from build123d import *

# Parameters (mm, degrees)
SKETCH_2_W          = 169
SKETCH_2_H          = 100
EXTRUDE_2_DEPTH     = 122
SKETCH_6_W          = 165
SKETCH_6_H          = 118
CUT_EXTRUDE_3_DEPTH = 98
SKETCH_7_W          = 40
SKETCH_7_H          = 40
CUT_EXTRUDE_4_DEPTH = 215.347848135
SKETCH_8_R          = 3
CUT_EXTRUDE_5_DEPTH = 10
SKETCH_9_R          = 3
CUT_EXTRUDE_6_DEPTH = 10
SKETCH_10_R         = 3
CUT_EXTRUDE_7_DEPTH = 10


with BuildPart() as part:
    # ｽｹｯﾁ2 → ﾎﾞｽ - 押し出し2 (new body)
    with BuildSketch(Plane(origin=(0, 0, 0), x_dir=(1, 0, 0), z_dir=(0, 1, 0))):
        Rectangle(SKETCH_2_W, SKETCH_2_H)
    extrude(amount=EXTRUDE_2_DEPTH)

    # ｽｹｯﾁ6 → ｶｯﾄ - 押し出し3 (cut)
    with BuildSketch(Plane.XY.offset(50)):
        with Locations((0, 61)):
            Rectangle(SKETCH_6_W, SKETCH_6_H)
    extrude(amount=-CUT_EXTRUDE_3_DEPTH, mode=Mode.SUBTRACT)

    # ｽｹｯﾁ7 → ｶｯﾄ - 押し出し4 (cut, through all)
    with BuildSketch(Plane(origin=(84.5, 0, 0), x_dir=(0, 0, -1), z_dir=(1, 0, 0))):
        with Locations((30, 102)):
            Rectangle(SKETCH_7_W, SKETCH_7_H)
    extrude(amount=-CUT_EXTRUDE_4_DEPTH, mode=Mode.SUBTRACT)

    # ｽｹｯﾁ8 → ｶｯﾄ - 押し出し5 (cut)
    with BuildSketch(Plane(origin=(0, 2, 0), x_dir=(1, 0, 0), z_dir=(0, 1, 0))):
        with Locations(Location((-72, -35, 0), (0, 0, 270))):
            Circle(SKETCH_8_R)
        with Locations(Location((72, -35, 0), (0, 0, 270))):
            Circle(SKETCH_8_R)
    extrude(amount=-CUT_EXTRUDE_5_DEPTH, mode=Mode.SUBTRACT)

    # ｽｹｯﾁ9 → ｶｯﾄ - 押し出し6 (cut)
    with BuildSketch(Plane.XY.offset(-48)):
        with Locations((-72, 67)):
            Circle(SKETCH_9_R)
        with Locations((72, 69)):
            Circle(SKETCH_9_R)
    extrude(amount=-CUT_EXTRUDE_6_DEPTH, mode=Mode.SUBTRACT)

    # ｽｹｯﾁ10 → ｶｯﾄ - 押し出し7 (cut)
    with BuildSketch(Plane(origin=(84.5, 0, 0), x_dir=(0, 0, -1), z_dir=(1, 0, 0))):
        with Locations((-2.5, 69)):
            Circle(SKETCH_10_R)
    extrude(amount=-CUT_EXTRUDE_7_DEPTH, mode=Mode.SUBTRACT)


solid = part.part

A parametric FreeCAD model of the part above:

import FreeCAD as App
import Part
import Sketcher
from FreeCAD import Vector

doc = App.newDocument("Part")
params = doc.addObject("Spreadsheet::Sheet", "Params")
for row, (alias, value) in enumerate([
    ("sketch1_width", "169 mm"),
    ("sketch1_height", "100 mm"),
    ("pad1_length", "122 mm"),
    ("sketch2_width", "165 mm"),
    ("sketch2_height", "118 mm"),
    ("pocket1_length", "98 mm"),
    ("sketch3_width", "40 mm"),
    ("sketch4_diameter", "6 mm"),
    ("pocket3_length", "10 mm"),
    ("sketch5_diameter", "6 mm"),
    ("pocket4_length", "10 mm"),
    ("sketch6_diameter", "6 mm"),
    ("pocket5_length", "10 mm"),
], start=1):
    params.set(f"A{row}", alias)
    params.set(f"B{row}", "=" + value)
    params.setAlias(f"B{row}", alias)

body = doc.addObject("PartDesign::Body", "Body")

sketch1 = doc.addObject("Sketcher::SketchObject", "Sketch")
body.addObject(sketch1)
sketch1.AttachmentSupport = (doc.XZ_Plane, [""])
sketch1.MapMode = "FlatFace"
sketch1.addGeometry([
    Part.LineSegment(Vector(-84, -50, 0), Vector(-84, 50, 0)),
    Part.LineSegment(Vector(-84, 50, 0), Vector(84, 50, 0)),
    Part.LineSegment(Vector(84, 50, 0), Vector(84, -50, 0)),
    Part.LineSegment(Vector(84, -50, 0), Vector(-84, -50, 0)),
], False)
sketch1.addConstraint([
    Sketcher.Constraint("Coincident", 0, 2, 1, 1),
    Sketcher.Constraint("Coincident", 1, 2, 2, 1),
    Sketcher.Constraint("Coincident", 2, 2, 3, 1),
    Sketcher.Constraint("Coincident", 3, 2, 0, 1),
    Sketcher.Constraint("Vertical", 0),
    Sketcher.Constraint("Horizontal", 1),
    Sketcher.Constraint("Vertical", 2),
    Sketcher.Constraint("Horizontal", 3),
    Sketcher.Constraint("Symmetric", 0, 2, 2, 2, -1, 1),
    Sketcher.Constraint("DistanceX", 1, 1, 1, 2, 169.0),
    Sketcher.Constraint("DistanceY", 0, 1, 0, 2, 100.0),
])
sketch1.setExpression("Constraints[9]", "Params.sketch1_width")
sketch1.setExpression("Constraints[10]", "Params.sketch1_height")
pad1 = doc.addObject("PartDesign::Pad", "Pad")
body.addObject(pad1)
pad1.Profile = sketch1
pad1.setExpression("Length", "Params.pad1_length")
pad1.Reversed = True

sketch2 = doc.addObject("Sketcher::SketchObject", "Sketch001")
body.addObject(sketch2)
sketch2.AttachmentSupport = (doc.XY_Plane, [""])
sketch2.MapMode = "FlatFace"
sketch2.AttachmentOffset = App.Placement(Vector(0, 0, 50), App.Rotation())
sketch2.addGeometry([
    Part.LineSegment(Vector(-82, 120, 0), Vector(-82, 2, 0)),
    Part.LineSegment(Vector(-82, 2, 0), Vector(82, 2, 0)),
    Part.LineSegment(Vector(82, 2, 0), Vector(82, 120, 0)),
    Part.LineSegment(Vector(82, 120, 0), Vector(-82, 120, 0)),
], False)
sketch2.addConstraint([
    Sketcher.Constraint("Coincident", 0, 2, 1, 1),
    Sketcher.Constraint("Coincident", 1, 2, 2, 1),
    Sketcher.Constraint("Coincident", 2, 2, 3, 1),
    Sketcher.Constraint("Coincident", 3, 2, 0, 1),
    Sketcher.Constraint("Vertical", 0),
    Sketcher.Constraint("Horizontal", 1),
    Sketcher.Constraint("Vertical", 2),
    Sketcher.Constraint("Horizontal", 3),
    Sketcher.Constraint("DistanceX", 1, 1, 1, 2, 165.0),
    Sketcher.Constraint("DistanceY", 0, 2, 0, 1, 118.0),
    Sketcher.Constraint("DistanceY", -1, 1, 0, 2, 2.0),
    Sketcher.Constraint("DistanceX", 0, 2, -1, 1, 82.5),
])
sketch2.setExpression("Constraints[8]", "Params.sketch2_width")
sketch2.setExpression("Constraints[9]", "Params.sketch2_height")
pocket1 = doc.addObject("PartDesign::Pocket", "Pocket")
body.addObject(pocket1)
pocket1.Profile = sketch2
pocket1.setExpression("Length", "Params.pocket1_length")

sketch3 = doc.addObject("Sketcher::SketchObject", "Sketch002")
body.addObject(sketch3)
sketch3.AttachmentSupport = (doc.YZ_Plane, [""])
sketch3.MapMode = "FlatFace"
sketch3.AttachmentOffset = App.Placement(Vector(0, 0, 84.5), App.Rotation())
sketch3.addGeometry([
    Part.LineSegment(Vector(122, -10, 0), Vector(82, -10, 0)),
    Part.LineSegment(Vector(82, -10, 0), Vector(82, -50, 0)),
    Part.LineSegment(Vector(82, -50, 0), Vector(122, -50, 0)),
    Part.LineSegment(Vector(122, -50, 0), Vector(122, -10, 0)),
], False)
sketch3.addConstraint([
    Sketcher.Constraint("Coincident", 0, 2, 1, 1),
    Sketcher.Constraint("Coincident", 1, 2, 2, 1),
    Sketcher.Constraint("Coincident", 2, 2, 3, 1),
    Sketcher.Constraint("Coincident", 3, 2, 0, 1),
    Sketcher.Constraint("Horizontal", 0),
    Sketcher.Constraint("Vertical", 1),
    Sketcher.Constraint("Horizontal", 2),
    Sketcher.Constraint("Vertical", 3),
    Sketcher.Constraint("Equal", 2, 1),
    Sketcher.Constraint("DistanceX", 0, 2, 0, 1, 40.0),
    Sketcher.Constraint("DistanceX", -1, 1, 0, 2, 82.0),
    Sketcher.Constraint("DistanceY", 0, 2, -1, 1, 10.0),
])
sketch3.setExpression("Constraints[9]", "Params.sketch3_width")
pocket2 = doc.addObject("PartDesign::Pocket", "Pocket001")
body.addObject(pocket2)
pocket2.Profile = sketch3
pocket2.Type = "ThroughAll"

sketch4 = doc.addObject("Sketcher::SketchObject", "Sketch003")
body.addObject(sketch4)
sketch4.AttachmentSupport = (doc.XZ_Plane, [""])
sketch4.MapMode = "FlatFace"
sketch4.AttachmentOffset = App.Placement(Vector(0, 0, -2), App.Rotation())
sketch4.addGeometry([
    Part.Circle(Vector(-72, 35, 0), Vector(0, 0, 1), 3),
    Part.Circle(Vector(72, 35, 0), Vector(0, 0, 1), 3),
], False)
sketch4.addConstraint([
    Sketcher.Constraint("Equal", 0, 1),
    Sketcher.Constraint("Symmetric", 0, 3, 1, 3, -2),
    Sketcher.Constraint("Diameter", 0, 6.0),
    Sketcher.Constraint("DistanceX", 0, 3, -1, 1, 72.0),
    Sketcher.Constraint("DistanceY", -1, 1, 0, 3, 35.0),
])
sketch4.setExpression("Constraints[2]", "Params.sketch4_diameter")
pocket3 = doc.addObject("PartDesign::Pocket", "Pocket002")
body.addObject(pocket3)
pocket3.Profile = sketch4
pocket3.setExpression("Length", "Params.pocket3_length")
pocket3.Reversed = True

sketch5 = doc.addObject("Sketcher::SketchObject", "Sketch004")
body.addObject(sketch5)
sketch5.AttachmentSupport = (doc.XY_Plane, [""])
sketch5.MapMode = "FlatFace"
sketch5.AttachmentOffset = App.Placement(Vector(0, 0, -48), App.Rotation())
sketch5.addGeometry([
    Part.Circle(Vector(-72, 67, 0), Vector(0, 0, 1), 3),
    Part.Circle(Vector(72, 69, 0), Vector(0, 0, 1), 3),
], False)
sketch5.addConstraint([
    Sketcher.Constraint("Equal", 0, 1),
    Sketcher.Constraint("Diameter", 0, 6.0),
    Sketcher.Constraint("DistanceX", 0, 3, -1, 1, 72.0),
    Sketcher.Constraint("DistanceY", -1, 1, 0, 3, 67.0),
    Sketcher.Constraint("DistanceX", -1, 1, 1, 3, 72.0),
    Sketcher.Constraint("DistanceY", -1, 1, 1, 3, 69.0),
])
sketch5.setExpression("Constraints[1]", "Params.sketch5_diameter")
pocket4 = doc.addObject("PartDesign::Pocket", "Pocket003")
body.addObject(pocket4)
pocket4.Profile = sketch5
pocket4.setExpression("Length", "Params.pocket4_length")

sketch6 = doc.addObject("Sketcher::SketchObject", "Sketch005")
body.addObject(sketch6)
sketch6.AttachmentSupport = (doc.YZ_Plane, [""])
sketch6.MapMode = "FlatFace"
sketch6.AttachmentOffset = App.Placement(Vector(0, 0, 84.5), App.Rotation())
sketch6.addGeometry(Part.Circle(Vector(69, 2.5, 0), Vector(0, 0, 1), 3), False)
sketch6.addConstraint([
    Sketcher.Constraint("Diameter", 0, 6.0),
    Sketcher.Constraint("DistanceX", -1, 1, 0, 3, 69.0),
    Sketcher.Constraint("DistanceY", -1, 1, 0, 3, 2.5),
])
sketch6.setExpression("Constraints[0]", "Params.sketch6_diameter")
pocket5 = doc.addObject("PartDesign::Pocket", "Pocket004")
body.addObject(pocket5)
pocket5.Profile = sketch6
pocket5.setExpression("Length", "Params.pocket5_length")

doc.recompute()
